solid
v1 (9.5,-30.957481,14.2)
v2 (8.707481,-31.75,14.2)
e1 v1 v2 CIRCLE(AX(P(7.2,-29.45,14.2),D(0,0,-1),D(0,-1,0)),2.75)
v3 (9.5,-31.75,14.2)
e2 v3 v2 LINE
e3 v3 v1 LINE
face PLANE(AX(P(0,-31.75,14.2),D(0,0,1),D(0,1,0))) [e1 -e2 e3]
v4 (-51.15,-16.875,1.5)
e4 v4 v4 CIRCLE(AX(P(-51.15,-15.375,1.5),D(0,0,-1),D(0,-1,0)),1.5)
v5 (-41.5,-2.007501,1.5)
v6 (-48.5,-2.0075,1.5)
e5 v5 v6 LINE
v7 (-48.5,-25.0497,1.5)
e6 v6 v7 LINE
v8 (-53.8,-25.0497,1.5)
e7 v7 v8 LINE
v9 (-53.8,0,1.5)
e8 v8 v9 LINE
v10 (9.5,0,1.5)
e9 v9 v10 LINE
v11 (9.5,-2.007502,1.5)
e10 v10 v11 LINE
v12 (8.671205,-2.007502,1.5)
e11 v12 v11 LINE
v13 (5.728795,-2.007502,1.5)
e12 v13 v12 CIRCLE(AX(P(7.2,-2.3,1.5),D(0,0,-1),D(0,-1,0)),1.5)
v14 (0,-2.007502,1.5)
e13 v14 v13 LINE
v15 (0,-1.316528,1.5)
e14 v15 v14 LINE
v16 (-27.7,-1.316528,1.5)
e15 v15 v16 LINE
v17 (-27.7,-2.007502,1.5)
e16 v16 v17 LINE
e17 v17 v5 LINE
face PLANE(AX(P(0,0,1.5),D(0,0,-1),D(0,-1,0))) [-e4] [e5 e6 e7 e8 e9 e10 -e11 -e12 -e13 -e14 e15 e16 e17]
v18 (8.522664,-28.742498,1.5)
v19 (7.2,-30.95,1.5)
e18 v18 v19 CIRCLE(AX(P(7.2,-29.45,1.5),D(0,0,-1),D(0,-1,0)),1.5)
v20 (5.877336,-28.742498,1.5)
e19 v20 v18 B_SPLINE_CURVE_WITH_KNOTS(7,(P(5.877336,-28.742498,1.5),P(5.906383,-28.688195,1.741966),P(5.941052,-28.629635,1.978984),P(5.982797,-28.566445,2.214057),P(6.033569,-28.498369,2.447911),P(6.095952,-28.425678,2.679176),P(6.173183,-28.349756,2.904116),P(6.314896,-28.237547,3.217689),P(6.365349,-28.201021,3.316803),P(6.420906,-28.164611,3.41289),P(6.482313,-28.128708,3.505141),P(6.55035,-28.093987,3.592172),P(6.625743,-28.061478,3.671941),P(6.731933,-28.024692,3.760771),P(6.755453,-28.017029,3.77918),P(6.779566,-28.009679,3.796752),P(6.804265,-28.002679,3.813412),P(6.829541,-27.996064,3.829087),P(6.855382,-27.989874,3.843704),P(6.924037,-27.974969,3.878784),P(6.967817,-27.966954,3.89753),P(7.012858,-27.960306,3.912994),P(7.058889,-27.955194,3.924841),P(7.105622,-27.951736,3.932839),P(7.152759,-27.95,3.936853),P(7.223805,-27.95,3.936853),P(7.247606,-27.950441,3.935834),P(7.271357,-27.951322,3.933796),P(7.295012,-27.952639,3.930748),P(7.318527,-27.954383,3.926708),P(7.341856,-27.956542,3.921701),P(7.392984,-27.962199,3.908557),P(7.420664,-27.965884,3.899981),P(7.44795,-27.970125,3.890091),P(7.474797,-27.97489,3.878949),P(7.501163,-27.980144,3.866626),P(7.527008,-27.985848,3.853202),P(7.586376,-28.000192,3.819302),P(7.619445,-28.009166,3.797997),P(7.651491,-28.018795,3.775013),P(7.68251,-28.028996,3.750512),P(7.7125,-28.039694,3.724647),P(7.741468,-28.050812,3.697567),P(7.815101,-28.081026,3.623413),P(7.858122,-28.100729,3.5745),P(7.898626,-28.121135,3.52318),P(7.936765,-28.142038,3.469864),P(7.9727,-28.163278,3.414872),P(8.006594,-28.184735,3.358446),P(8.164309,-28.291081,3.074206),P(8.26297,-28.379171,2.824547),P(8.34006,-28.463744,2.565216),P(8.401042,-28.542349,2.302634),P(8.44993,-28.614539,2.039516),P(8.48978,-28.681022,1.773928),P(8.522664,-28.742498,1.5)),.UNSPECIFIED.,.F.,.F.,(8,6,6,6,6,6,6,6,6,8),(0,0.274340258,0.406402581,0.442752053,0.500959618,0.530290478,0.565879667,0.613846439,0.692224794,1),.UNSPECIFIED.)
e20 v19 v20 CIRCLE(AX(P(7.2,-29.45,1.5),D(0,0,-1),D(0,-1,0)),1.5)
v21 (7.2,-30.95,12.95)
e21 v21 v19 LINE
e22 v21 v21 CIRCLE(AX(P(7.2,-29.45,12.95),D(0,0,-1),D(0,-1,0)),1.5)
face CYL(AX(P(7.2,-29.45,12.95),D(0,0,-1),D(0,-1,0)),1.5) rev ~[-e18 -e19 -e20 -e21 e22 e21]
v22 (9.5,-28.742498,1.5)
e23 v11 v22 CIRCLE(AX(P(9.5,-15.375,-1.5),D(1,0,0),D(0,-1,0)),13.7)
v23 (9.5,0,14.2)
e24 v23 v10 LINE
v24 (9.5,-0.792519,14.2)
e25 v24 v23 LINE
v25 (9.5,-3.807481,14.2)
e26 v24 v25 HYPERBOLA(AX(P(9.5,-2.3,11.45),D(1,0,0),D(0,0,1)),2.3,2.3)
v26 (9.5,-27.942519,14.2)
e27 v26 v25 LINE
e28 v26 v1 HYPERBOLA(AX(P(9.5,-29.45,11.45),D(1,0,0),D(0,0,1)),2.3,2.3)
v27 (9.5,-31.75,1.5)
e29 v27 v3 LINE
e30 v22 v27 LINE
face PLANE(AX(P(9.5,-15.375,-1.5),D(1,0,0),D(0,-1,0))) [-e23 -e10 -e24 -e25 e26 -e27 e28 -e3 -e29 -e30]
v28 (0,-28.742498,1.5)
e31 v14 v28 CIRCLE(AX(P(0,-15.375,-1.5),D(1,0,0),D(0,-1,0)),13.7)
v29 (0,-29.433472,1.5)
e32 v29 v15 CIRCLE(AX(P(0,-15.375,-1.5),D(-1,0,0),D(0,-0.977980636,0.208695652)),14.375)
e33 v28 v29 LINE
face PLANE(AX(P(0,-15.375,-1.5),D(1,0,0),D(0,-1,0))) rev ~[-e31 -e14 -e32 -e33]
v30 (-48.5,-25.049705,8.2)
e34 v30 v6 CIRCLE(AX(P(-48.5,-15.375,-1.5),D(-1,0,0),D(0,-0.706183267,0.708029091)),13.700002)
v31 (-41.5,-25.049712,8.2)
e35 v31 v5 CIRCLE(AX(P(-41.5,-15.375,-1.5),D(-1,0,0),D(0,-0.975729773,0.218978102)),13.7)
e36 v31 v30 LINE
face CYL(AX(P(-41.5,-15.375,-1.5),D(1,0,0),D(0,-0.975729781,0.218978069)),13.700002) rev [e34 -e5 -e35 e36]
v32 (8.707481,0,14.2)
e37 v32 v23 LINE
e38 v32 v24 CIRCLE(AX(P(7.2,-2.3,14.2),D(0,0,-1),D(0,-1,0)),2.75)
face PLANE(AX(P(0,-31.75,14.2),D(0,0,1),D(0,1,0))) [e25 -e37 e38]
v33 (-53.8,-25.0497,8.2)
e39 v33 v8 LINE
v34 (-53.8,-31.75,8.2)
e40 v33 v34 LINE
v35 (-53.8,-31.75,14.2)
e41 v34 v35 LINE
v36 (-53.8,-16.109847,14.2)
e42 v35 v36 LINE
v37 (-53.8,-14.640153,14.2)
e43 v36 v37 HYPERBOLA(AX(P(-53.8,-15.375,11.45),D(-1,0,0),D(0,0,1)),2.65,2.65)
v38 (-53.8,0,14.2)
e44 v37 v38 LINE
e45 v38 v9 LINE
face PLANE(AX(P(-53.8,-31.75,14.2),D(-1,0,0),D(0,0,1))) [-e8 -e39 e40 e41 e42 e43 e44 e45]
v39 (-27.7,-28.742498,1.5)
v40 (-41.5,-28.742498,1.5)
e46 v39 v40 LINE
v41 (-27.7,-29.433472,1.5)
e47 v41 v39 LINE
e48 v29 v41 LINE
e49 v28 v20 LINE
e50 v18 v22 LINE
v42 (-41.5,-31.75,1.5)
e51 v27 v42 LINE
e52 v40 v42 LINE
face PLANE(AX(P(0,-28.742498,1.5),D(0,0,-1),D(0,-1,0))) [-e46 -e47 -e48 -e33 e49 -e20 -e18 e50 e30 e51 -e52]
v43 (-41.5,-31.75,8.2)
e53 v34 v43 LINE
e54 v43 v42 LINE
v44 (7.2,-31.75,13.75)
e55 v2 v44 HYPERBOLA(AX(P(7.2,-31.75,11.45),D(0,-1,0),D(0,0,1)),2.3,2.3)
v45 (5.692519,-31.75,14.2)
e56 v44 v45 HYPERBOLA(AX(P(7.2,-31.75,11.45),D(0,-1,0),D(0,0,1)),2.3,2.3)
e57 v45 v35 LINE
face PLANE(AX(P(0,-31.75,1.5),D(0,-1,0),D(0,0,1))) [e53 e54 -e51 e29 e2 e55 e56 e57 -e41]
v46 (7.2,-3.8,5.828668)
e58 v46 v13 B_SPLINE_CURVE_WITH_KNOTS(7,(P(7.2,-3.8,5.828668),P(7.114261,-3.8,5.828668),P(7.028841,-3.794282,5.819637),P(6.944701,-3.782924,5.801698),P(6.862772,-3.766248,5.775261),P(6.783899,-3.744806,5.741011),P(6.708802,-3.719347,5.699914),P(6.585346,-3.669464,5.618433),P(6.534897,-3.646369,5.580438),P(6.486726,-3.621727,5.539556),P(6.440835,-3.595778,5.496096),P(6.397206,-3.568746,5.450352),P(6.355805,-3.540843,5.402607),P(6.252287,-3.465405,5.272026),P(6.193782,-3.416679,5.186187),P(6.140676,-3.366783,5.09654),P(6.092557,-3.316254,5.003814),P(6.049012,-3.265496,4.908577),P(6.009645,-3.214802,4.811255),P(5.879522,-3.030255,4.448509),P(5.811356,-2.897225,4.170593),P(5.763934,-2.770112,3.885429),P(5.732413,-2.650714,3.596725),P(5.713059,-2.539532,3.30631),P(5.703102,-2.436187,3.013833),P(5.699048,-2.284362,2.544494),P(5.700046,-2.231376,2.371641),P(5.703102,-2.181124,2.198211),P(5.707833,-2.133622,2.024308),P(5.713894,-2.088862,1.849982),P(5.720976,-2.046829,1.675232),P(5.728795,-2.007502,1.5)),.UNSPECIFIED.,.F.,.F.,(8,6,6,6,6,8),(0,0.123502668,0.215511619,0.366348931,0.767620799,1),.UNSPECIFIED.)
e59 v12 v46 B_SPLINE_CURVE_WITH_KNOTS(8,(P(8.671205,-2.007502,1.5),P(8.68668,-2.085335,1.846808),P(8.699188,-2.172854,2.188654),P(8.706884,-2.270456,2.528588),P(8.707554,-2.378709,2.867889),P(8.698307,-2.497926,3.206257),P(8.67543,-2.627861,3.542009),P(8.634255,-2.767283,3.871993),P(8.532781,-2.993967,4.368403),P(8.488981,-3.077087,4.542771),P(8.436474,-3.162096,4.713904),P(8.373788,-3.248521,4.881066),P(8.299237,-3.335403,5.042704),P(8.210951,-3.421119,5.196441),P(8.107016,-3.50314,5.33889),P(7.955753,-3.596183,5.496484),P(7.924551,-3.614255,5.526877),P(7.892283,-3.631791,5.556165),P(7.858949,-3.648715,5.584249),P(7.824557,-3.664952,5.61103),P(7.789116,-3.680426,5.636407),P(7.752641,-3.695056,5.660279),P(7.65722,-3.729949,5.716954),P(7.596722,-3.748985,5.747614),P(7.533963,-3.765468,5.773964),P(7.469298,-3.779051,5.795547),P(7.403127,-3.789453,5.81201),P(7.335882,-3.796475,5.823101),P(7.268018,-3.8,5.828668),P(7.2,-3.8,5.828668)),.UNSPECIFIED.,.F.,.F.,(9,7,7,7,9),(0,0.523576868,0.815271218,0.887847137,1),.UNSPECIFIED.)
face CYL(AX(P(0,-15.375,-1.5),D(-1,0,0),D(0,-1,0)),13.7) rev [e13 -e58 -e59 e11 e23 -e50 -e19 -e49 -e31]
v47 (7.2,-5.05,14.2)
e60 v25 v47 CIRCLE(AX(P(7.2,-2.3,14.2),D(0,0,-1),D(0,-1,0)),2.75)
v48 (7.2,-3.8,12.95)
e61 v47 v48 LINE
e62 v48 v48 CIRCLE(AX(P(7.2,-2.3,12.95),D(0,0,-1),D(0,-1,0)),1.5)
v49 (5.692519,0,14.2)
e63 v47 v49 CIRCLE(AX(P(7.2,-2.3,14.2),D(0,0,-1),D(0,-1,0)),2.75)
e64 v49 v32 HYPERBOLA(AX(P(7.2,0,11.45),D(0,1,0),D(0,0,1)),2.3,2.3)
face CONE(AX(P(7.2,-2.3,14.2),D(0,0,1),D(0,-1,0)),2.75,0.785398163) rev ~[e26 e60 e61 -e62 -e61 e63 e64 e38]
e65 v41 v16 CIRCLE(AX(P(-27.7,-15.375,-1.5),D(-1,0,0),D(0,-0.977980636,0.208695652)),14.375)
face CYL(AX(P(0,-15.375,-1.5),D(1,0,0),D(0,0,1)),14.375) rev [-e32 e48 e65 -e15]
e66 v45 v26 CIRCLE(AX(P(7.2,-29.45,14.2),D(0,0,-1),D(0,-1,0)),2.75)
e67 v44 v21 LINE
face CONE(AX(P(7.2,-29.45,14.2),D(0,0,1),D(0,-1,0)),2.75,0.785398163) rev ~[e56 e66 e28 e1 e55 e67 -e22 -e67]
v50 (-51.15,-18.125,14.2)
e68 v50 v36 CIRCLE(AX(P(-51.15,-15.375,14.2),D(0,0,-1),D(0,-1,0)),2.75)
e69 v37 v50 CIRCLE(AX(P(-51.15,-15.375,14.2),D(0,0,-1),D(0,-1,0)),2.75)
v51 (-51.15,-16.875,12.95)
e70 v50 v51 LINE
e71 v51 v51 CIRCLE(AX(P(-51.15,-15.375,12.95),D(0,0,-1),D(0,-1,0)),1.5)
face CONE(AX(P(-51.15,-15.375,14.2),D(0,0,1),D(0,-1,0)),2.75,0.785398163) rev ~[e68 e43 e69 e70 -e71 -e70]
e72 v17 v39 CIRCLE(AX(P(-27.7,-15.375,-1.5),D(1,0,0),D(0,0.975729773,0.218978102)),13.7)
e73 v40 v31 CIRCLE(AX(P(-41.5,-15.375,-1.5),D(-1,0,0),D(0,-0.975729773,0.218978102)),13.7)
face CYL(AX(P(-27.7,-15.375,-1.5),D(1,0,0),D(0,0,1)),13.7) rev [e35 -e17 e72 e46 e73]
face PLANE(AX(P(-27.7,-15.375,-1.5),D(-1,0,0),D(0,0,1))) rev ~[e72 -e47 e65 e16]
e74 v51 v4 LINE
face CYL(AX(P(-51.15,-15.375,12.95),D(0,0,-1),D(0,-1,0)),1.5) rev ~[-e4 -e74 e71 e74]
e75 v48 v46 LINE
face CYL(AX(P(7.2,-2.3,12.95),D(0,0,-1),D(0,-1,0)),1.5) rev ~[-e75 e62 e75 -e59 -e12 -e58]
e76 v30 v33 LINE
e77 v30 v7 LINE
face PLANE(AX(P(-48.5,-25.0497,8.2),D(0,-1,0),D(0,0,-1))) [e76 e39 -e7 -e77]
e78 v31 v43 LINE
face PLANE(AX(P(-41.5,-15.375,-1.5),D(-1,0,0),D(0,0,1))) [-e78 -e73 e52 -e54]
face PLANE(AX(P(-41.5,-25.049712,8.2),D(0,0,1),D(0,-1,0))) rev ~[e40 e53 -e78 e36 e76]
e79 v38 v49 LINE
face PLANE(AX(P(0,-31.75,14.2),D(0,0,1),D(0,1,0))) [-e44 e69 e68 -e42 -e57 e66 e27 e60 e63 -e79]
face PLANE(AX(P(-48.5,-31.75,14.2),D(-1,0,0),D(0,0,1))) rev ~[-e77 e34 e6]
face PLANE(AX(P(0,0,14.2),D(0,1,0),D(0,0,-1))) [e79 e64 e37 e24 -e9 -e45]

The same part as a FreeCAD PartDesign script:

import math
import FreeCAD as App
import Part
import Sketcher

V = App.Vector


def add_polygon(sketch, points):
    """Adds a closed chain of lines whose ends are joined by coincident constraints."""
    first, n = sketch.GeometryCount, len(points)
    for a, b in zip(points, points[1:] + points[:1]):
        sketch.addGeometry(Part.LineSegment(App.Vector(*a, 0), App.Vector(*b, 0)), False)
    for i in range(n):
        sketch.addConstraint(Sketcher.Constraint("Coincident", first + i, 2, first + (i + 1) % n, 1))

doc = App.newDocument("Part")
params = doc.addObject("Spreadsheet::Sheet", "Params")
for row, (alias, value) in enumerate([
    ("sketch1_radius", "13.7 mm"),
    ("sketch1_height", "12.7 mm"),
    ("sketch1_width", "31.75 mm"),
    ("pad1_length", "9.5 mm"),
    ("sketch2_height", "12.7 mm"),
    ("sketch2_height2", "3 mm"),
    ("sketch2_width", "31.75 mm"),
    ("pad2_length", "27.7 mm"),
    ("sketch3_radius", "13.7 mm"),
    ("sketch3_height", "12.7 mm"),
    ("sketch3_height2", "3 mm"),
    ("sketch3_width", "31.75 mm"),
    ("pad3_length", "13.8 mm"),
    ("sketch4_height", "6 mm"),
    ("sketch4_radius", "13.7 mm"),
    ("sketch4_height2", "12.7 mm"),
    ("sketch4_width", "31.75 mm"),
    ("pad4_length", "7 mm"),
    ("sketch5_height", "6 mm"),
    ("sketch5_height2", "12.7 mm"),
    ("sketch5_width", "31.75 mm"),
    ("pad5_length", "5.3 mm"),
    ("sketch6_diameter", "3 mm"),
    ("hole_diameter", "3 mm"),
    ("hole_depth", "14.5 mm"),
    ("hole_csink_diameter", "5.5 mm"),
], start=1):
    params.set(f"A{row}", alias)
    params.set(f"B{row}", "=" + value)
    params.setAlias(f"B{row}", alias)

body = doc.addObject("PartDesign::Body", "Body")

sketch1 = doc.addObject("Sketcher::SketchObject", "Sketch")
body.addObject(sketch1)
sketch1.AttachmentSupport = (doc.YZ_Plane, [""])
sketch1.MapMode = "FlatFace"
sketch1.addGeometry([
    Part.ArcOfCircle(Part.Circle(V(-15.4, -1.5, 0), V(0, 0, 1), 13.7), math.radians(13), math.radians(167)),
    Part.LineSegment(V(-2, 1.5, 0), V(0, 1.5, 0)),
    Part.LineSegment(V(0, 1.5, 0), V(0, 14.2, 0)),
    Part.LineSegment(V(0, 14.2, 0), V(-31.8, 14.2, 0)),
    Part.LineSegment(V(-31.8, 14.2, 0), V(-31.8, 1.5, 0)),
    Part.LineSegment(V(-31.8, 1.5, 0), V(-28.7, 1.5, 0)),
], False)
sketch1.addConstraint([
    Sketcher.Constraint("Coincident", 0, 1, 1, 1),
    Sketcher.Constraint("Coincident", 1, 2, 2, 1),
    Sketcher.Constraint("Coincident", 2, 2, 3, 1),
    Sketcher.Constraint("Coincident", 3, 2, 4, 1),
    Sketcher.Constraint("Coincident", 4, 2, 5, 1),
    Sketcher.Constraint("Coincident", 5, 2, 0, 2),
    Sketcher.Constraint("Horizontal", 1),
    Sketcher.Constraint("Vertical", 2),
    Sketcher.Constraint("Horizontal", 3),
    Sketcher.Constraint("Vertical", 4),
    Sketcher.Constraint("Horizontal", 5),
    Sketcher.Constraint("PointOnObject", 1, 2, -2),
    Sketcher.Constraint("Horizontal", 1, 2, 4, 2),
    Sketcher.Constraint("DistanceY", 0, 3, -1, 1, 1.5),
    Sketcher.Constraint("DistanceY", -1, 1, 0, 1, 1.5),
    Sketcher.Constraint("Radius", 0, 13.7),
    Sketcher.Constraint("DistanceY", 2, 1, 2, 2, 12.7),
    Sketcher.Constraint("DistanceX", 3, 2, 3, 1, 31.75),
    Sketcher.Constraint("DistanceX", 1, 1, 1, 2, 2.0075),
])
sketch1.setExpression("Constraints[15]", "Params.sketch1_radius")
sketch1.setExpression("Constraints[16]", "Params.sketch1_height")
sketch1.setExpression("Constraints[17]", "Params.sketch1_width")
pad1 = doc.addObject("PartDesign::Pad", "Pad")
body.addObject(pad1)
pad1.Profile = sketch1
pad1.setExpression("Length", "Params.pad1_length")

sketch2 = doc.addObject("Sketcher::SketchObject", "Sketch001")
body.addObject(sketch2)
sketch2.AttachmentSupport = (doc.YZ_Plane, [""])
sketch2.MapMode = "FlatFace"
sketch2.addGeometry([
    Part.ArcOfCircle(Part.Circle(V(-15.4, -1.5, 0), V(0, 0, 1), 14.4), math.radians(12), math.radians(168)),
    Part.LineSegment(V(-29.4, 1.5, 0), V(-31.8, 1.5, 0)),
    Part.LineSegment(V(-31.8, 1.5, 0), V(-31.8, 14.2, 0)),
    Part.LineSegment(V(-31.8, 14.2, 0), V(0, 14.2, 0)),
    Part.LineSegment(V(0, 14.2, 0), V(0, 1.5, 0)),
    Part.LineSegment(V(0, 1.5, 0), V(-1.3, 1.5, 0)),
], False)
sketch2.addConstraint([
    Sketcher.Constraint("Coincident", 0, 2, 1, 1),
    Sketcher.Constraint("Coincident", 1, 2, 2, 1),
    Sketcher.Constraint("Coincident", 2, 2, 3, 1),
    Sketcher.Constraint("Coincident", 3, 2, 4, 1),
    Sketcher.Constraint("Coincident", 4, 2, 5, 1),
    Sketcher.Constraint("Coincident", 5, 2, 0, 1),
    Sketcher.Constraint("Horizontal", 1),
    Sketcher.Constraint("Vertical", 2),
    Sketcher.Constraint("Horizontal", 3),
    Sketcher.Constraint("Vertical", 4),
    Sketcher.Constraint("Horizontal", 5),
    Sketcher.Constraint("PointOnObject", 3, 2, -2),
    Sketcher.Constraint("Horizontal", 1, 2, 4, 2),
    Sketcher.Constraint("DistanceY", 2, 1, 2, 2, 12.7),
    Sketcher.Constraint("Radius", 0, 14.375),
    Sketcher.Constraint("DistanceY", 0, 3, 0, 2, 3.0),
    Sketcher.Constraint("DistanceX", 3, 1, 3, 2, 31.75),
    Sketcher.Constraint("DistanceY", 0, 3, -1, 1, 1.5),
    Sketcher.Constraint("DistanceX", 1, 2, 1, 1, 2.3165),
])
sketch2.setExpression("Constraints[13]", "Params.sketch2_height")
sketch2.setExpression("Constraints[15]", "Params.sketch2_height2")
sketch2.setExpression("Constraints[16]", "Params.sketch2_width")
pad2 = doc.addObject("PartDesign::Pad", "Pad001")
body.addObject(pad2)
pad2.Profile = sketch2
pad2.setExpression("Length", "Params.pad2_length")
pad2.Reversed = True

sketch3 = doc.addObject("Sketcher::SketchObject", "Sketch002")
body.addObject(sketch3)
sketch3.AttachmentSupport = (doc.YZ_Plane, [""])
sketch3.MapMode = "FlatFace"
sketch3.AttachmentOffset = App.Placement(V(0, 0, -27.7), App.Rotation())
sketch3.addGeometry([
    Part.ArcOfCircle(Part.Circle(V(-15.4, -1.5, 0), V(0, 0, 1), 13.7), math.radians(13), math.radians(167)),
    Part.LineSegment(V(-28.7, 1.5, 0), V(-31.8, 1.5, 0)),
    Part.LineSegment(V(-31.8, 1.5, 0), V(-31.8, 14.2, 0)),
    Part.LineSegment(V(-31.8, 14.2, 0), V(0, 14.2, 0)),
    Part.LineSegment(V(0, 14.2, 0), V(0, 1.5, 0)),
    Part.LineSegment(V(0, 1.5, 0), V(-2, 1.5, 0)),
], False)
sketch3.addConstraint([
    Sketcher.Constraint("Coincident", 0, 2, 1, 1),
    Sketcher.Constraint("Coincident", 1, 2, 2, 1),
    Sketcher.Constraint("Coincident", 2, 2, 3, 1),
    Sketcher.Constraint("Coincident", 3, 2, 4, 1),
    Sketcher.Constraint("Coincident", 4, 2, 5, 1),
    Sketcher.Constraint("Coincident", 5, 2, 0, 1),
    Sketcher.Constraint("Horizontal", 1),
    Sketcher.Constraint("Vertical", 2),
    Sketcher.Constraint("Horizontal", 3),
    Sketcher.Constraint("Vertical", 4),
    Sketcher.Constraint("Horizontal", 5),
    Sketcher.Constraint("PointOnObject", 3, 2, -2),
    Sketcher.Constraint("Horizontal", 1, 2, 4, 2),
    Sketcher.Constraint("Radius", 0, 13.7),
    Sketcher.Constraint("DistanceY", 2, 1, 2, 2, 12.7),
    Sketcher.Constraint("DistanceY", 0, 3, 0, 2, 3.0),
    Sketcher.Constraint("DistanceX", 3, 1, 3, 2, 31.75),
    Sketcher.Constraint("DistanceY", 0, 3, -1, 1, 1.5),
    Sketcher.Constraint("DistanceX", 1, 2, 1, 1, 3.0075),
])
sketch3.setExpression("Constraints[13]", "Params.sketch3_radius")
sketch3.setExpression("Constraints[14]", "Params.sketch3_height")
sketch3.setExpression("Constraints[15]", "Params.sketch3_height2")
sketch3.setExpression("Constraints[16]", "Params.sketch3_width")
pad3 = doc.addObject("PartDesign::Pad", "Pad002")
body.addObject(pad3)
pad3.Profile = sketch3
pad3.setExpression("Length", "Params.pad3_length")
pad3.Reversed = True

sketch4 = doc.addObject("Sketcher::SketchObject", "Sketch003")
body.addObject(sketch4)
sketch4.AttachmentSupport = (doc.YZ_Plane, [""])
sketch4.MapMode = "FlatFace"
sketch4.AttachmentOffset = App.Placement(V(0, 0, -41.5), App.Rotation())
sketch4.addGeometry([
    Part.LineSegment(V(-25, 8.2, 0), V(-31.8, 8.2, 0)),
    Part.LineSegment(V(-31.8, 8.2, 0), V(-31.8, 14.2, 0)),
    Part.LineSegment(V(-31.8, 14.2, 0), V(0, 14.2, 0)),
    Part.LineSegment(V(0, 14.2, 0), V(0, 1.5, 0)),
    Part.LineSegment(V(0, 1.5, 0), V(-2, 1.5, 0)),
    Part.ArcOfCircle(Part.Circle(V(-15.4, -1.5, 0), V(0, 0, 1), 13.7), math.radians(13), math.radians(135)),
], False)
sketch4.addConstraint([
    Sketcher.Constraint("Coincident", 0, 2, 1, 1),
    Sketcher.Constraint("Coincident", 1, 2, 2, 1),
    Sketcher.Constraint("Coincident", 2, 2, 3, 1),
    Sketcher.Constraint("Coincident", 3, 2, 4, 1),
    Sketcher.Constraint("Coincident", 4, 2, 5, 1),
    Sketcher.Constraint("Coincident", 5, 2, 0, 1),
    Sketcher.Constraint("Horizontal", 0),
    Sketcher.Constraint("Vertical", 1),
    Sketcher.Constraint("Horizontal", 2),
    Sketcher.Constraint("Vertical", 3),
    Sketcher.Constraint("Horizontal", 4),
    Sketcher.Constraint("PointOnObject", 2, 2, -2),
    Sketcher.Constraint("DistanceY", 1, 1, 1, 2, 6.0),
    Sketcher.Constraint("Radius", 5, 13.7),
    Sketcher.Constraint("DistanceY", 3, 2, 3, 1, 12.7),
    Sketcher.Constraint("DistanceY", 5, 3, 3, 2, 3.0),
    Sketcher.Constraint("DistanceX", 2, 1, 2, 2, 31.75),
    Sketcher.Constraint("DistanceY", 5, 3, -1, 1, 1.5),
    Sketcher.Constraint("DistanceX", 0, 2, 0, 1, 6.7003),
])
sketch4.setExpression("Constraints[12]", "Params.sketch4_height")
sketch4.setExpression("Constraints[13]", "Params.sketch4_radius")
sketch4.setExpression("Constraints[14]", "Params.sketch4_height2")
sketch4.setExpression("Constraints[16]", "Params.sketch4_width")
pad4 = doc.addObject("PartDesign::Pad", "Pad003")
body.addObject(pad4)
pad4.Profile = sketch4
pad4.setExpression("Length", "Params.pad4_length")
pad4.Reversed = True

sketch5 = doc.addObject("Sketcher::SketchObject", "Sketch004")
body.addObject(sketch5)
sketch5.AttachmentSupport = (doc.YZ_Plane, [""])
sketch5.MapMode = "FlatFace"
sketch5.AttachmentOffset = App.Placement(V(0, 0, -48.5), App.Rotation())
add_polygon(sketch5, [(0, 14), (0, 2), (-25, 2), (-25, 8), (-32, 8), (-32, 14)])
sketch5.addConstraint([
    Sketcher.Constraint("Vertical", 0),
    Sketcher.Constraint("Horizontal", 1),
    Sketcher.Constraint("Vertical", 2),
    Sketcher.Constraint("Horizontal", 3),
    Sketcher.Constraint("Vertical", 4),
    Sketcher.Constraint("Horizontal", 5),
    Sketcher.Constraint("PointOnObject", 0, 2, -2),
    Sketcher.Constraint("DistanceY", 4, 1, 4, 2, 6.0),
    Sketcher.Constraint("DistanceY", 0, 2, 0, 1, 12.7),
    Sketcher.Constraint("DistanceX", 5, 1, 5, 2, 31.75),
    Sketcher.Constraint("DistanceY", -1, 1, 0, 2, 1.5),
    Sketcher.Constraint("DistanceX", 1, 2, 1, 1, 25.0497),
])
sketch5.setExpression("Constraints[13]", "Params.sketch5_height")
sketch5.setExpression("Constraints[14]", "Params.sketch5_height2")
sketch5.setExpression("Constraints[15]", "Params.sketch5_width")
pad5 = doc.addObject("PartDesign::Pad", "Pad004")
body.addObject(pad5)
pad5.Profile = sketch5
pad5.setExpression("Length", "Params.pad5_length")
pad5.Reversed = True

sketch6 = doc.addObject("Sketcher::SketchObject", "Sketch005")
body.addObject(sketch6)
sketch6.AttachmentSupport = (doc.XY_Plane, [""])
sketch6.MapMode = "FlatFace"
sketch6.AttachmentOffset = App.Placement(V(0, 0, 14.2), App.Rotation())
sketch6.addGeometry([
    Part.Circle(V(7.2, -2.3, 0), V(0, 0, 1), 1.5),
    Part.Circle(V(7.2, -29.4, 0), V(0, 0, 1), 1.5),
    Part.Circle(V(-51.1, -15.4, 0), V(0, 0, 1), 1.5),
], False)
sketch6.addConstraint([
    Sketcher.Constraint("Equal", 0, 1),
    Sketcher.Constraint("Equal", 1, 2),
    Sketcher.Constraint("Vertical", 0, 3, 1, 3),
    Sketcher.Constraint("Diameter", 0, 3.0),
    Sketcher.Constraint("DistanceX", -1, 1, 0, 3, 7.2),
    Sketcher.Constraint("DistanceY", 0, 3, -1, 1, 2.3),
    Sketcher.Constraint("DistanceY", 1, 3, -1, 1, 29.45),
    Sketcher.Constraint("DistanceX", 2, 3, -1, 1, 51.15),
    Sketcher.Constraint("DistanceY", 2, 3, -1, 1, 15.375),
])
sketch6.setExpression("Constraints[3]", "Params.sketch6_diameter")
doc.recompute()
hole = doc.addObject("PartDesign::Hole", "Hole")
body.addObject(hole)
hole.Profile = sketch6
hole.ThreadType = "None"
hole.setExpression("Diameter", "Params.hole_diameter")
hole.DepthType = "Dimension"
hole.setExpression("Depth", "Params.hole_depth")
hole.DrillPoint = "Flat"
hole.HoleCutType = "Countersink"
hole.setExpression("HoleCutDiameter", "Params.hole_csink_diameter")
hole.HoleCutCountersinkAngle = 90

doc.recompute()
